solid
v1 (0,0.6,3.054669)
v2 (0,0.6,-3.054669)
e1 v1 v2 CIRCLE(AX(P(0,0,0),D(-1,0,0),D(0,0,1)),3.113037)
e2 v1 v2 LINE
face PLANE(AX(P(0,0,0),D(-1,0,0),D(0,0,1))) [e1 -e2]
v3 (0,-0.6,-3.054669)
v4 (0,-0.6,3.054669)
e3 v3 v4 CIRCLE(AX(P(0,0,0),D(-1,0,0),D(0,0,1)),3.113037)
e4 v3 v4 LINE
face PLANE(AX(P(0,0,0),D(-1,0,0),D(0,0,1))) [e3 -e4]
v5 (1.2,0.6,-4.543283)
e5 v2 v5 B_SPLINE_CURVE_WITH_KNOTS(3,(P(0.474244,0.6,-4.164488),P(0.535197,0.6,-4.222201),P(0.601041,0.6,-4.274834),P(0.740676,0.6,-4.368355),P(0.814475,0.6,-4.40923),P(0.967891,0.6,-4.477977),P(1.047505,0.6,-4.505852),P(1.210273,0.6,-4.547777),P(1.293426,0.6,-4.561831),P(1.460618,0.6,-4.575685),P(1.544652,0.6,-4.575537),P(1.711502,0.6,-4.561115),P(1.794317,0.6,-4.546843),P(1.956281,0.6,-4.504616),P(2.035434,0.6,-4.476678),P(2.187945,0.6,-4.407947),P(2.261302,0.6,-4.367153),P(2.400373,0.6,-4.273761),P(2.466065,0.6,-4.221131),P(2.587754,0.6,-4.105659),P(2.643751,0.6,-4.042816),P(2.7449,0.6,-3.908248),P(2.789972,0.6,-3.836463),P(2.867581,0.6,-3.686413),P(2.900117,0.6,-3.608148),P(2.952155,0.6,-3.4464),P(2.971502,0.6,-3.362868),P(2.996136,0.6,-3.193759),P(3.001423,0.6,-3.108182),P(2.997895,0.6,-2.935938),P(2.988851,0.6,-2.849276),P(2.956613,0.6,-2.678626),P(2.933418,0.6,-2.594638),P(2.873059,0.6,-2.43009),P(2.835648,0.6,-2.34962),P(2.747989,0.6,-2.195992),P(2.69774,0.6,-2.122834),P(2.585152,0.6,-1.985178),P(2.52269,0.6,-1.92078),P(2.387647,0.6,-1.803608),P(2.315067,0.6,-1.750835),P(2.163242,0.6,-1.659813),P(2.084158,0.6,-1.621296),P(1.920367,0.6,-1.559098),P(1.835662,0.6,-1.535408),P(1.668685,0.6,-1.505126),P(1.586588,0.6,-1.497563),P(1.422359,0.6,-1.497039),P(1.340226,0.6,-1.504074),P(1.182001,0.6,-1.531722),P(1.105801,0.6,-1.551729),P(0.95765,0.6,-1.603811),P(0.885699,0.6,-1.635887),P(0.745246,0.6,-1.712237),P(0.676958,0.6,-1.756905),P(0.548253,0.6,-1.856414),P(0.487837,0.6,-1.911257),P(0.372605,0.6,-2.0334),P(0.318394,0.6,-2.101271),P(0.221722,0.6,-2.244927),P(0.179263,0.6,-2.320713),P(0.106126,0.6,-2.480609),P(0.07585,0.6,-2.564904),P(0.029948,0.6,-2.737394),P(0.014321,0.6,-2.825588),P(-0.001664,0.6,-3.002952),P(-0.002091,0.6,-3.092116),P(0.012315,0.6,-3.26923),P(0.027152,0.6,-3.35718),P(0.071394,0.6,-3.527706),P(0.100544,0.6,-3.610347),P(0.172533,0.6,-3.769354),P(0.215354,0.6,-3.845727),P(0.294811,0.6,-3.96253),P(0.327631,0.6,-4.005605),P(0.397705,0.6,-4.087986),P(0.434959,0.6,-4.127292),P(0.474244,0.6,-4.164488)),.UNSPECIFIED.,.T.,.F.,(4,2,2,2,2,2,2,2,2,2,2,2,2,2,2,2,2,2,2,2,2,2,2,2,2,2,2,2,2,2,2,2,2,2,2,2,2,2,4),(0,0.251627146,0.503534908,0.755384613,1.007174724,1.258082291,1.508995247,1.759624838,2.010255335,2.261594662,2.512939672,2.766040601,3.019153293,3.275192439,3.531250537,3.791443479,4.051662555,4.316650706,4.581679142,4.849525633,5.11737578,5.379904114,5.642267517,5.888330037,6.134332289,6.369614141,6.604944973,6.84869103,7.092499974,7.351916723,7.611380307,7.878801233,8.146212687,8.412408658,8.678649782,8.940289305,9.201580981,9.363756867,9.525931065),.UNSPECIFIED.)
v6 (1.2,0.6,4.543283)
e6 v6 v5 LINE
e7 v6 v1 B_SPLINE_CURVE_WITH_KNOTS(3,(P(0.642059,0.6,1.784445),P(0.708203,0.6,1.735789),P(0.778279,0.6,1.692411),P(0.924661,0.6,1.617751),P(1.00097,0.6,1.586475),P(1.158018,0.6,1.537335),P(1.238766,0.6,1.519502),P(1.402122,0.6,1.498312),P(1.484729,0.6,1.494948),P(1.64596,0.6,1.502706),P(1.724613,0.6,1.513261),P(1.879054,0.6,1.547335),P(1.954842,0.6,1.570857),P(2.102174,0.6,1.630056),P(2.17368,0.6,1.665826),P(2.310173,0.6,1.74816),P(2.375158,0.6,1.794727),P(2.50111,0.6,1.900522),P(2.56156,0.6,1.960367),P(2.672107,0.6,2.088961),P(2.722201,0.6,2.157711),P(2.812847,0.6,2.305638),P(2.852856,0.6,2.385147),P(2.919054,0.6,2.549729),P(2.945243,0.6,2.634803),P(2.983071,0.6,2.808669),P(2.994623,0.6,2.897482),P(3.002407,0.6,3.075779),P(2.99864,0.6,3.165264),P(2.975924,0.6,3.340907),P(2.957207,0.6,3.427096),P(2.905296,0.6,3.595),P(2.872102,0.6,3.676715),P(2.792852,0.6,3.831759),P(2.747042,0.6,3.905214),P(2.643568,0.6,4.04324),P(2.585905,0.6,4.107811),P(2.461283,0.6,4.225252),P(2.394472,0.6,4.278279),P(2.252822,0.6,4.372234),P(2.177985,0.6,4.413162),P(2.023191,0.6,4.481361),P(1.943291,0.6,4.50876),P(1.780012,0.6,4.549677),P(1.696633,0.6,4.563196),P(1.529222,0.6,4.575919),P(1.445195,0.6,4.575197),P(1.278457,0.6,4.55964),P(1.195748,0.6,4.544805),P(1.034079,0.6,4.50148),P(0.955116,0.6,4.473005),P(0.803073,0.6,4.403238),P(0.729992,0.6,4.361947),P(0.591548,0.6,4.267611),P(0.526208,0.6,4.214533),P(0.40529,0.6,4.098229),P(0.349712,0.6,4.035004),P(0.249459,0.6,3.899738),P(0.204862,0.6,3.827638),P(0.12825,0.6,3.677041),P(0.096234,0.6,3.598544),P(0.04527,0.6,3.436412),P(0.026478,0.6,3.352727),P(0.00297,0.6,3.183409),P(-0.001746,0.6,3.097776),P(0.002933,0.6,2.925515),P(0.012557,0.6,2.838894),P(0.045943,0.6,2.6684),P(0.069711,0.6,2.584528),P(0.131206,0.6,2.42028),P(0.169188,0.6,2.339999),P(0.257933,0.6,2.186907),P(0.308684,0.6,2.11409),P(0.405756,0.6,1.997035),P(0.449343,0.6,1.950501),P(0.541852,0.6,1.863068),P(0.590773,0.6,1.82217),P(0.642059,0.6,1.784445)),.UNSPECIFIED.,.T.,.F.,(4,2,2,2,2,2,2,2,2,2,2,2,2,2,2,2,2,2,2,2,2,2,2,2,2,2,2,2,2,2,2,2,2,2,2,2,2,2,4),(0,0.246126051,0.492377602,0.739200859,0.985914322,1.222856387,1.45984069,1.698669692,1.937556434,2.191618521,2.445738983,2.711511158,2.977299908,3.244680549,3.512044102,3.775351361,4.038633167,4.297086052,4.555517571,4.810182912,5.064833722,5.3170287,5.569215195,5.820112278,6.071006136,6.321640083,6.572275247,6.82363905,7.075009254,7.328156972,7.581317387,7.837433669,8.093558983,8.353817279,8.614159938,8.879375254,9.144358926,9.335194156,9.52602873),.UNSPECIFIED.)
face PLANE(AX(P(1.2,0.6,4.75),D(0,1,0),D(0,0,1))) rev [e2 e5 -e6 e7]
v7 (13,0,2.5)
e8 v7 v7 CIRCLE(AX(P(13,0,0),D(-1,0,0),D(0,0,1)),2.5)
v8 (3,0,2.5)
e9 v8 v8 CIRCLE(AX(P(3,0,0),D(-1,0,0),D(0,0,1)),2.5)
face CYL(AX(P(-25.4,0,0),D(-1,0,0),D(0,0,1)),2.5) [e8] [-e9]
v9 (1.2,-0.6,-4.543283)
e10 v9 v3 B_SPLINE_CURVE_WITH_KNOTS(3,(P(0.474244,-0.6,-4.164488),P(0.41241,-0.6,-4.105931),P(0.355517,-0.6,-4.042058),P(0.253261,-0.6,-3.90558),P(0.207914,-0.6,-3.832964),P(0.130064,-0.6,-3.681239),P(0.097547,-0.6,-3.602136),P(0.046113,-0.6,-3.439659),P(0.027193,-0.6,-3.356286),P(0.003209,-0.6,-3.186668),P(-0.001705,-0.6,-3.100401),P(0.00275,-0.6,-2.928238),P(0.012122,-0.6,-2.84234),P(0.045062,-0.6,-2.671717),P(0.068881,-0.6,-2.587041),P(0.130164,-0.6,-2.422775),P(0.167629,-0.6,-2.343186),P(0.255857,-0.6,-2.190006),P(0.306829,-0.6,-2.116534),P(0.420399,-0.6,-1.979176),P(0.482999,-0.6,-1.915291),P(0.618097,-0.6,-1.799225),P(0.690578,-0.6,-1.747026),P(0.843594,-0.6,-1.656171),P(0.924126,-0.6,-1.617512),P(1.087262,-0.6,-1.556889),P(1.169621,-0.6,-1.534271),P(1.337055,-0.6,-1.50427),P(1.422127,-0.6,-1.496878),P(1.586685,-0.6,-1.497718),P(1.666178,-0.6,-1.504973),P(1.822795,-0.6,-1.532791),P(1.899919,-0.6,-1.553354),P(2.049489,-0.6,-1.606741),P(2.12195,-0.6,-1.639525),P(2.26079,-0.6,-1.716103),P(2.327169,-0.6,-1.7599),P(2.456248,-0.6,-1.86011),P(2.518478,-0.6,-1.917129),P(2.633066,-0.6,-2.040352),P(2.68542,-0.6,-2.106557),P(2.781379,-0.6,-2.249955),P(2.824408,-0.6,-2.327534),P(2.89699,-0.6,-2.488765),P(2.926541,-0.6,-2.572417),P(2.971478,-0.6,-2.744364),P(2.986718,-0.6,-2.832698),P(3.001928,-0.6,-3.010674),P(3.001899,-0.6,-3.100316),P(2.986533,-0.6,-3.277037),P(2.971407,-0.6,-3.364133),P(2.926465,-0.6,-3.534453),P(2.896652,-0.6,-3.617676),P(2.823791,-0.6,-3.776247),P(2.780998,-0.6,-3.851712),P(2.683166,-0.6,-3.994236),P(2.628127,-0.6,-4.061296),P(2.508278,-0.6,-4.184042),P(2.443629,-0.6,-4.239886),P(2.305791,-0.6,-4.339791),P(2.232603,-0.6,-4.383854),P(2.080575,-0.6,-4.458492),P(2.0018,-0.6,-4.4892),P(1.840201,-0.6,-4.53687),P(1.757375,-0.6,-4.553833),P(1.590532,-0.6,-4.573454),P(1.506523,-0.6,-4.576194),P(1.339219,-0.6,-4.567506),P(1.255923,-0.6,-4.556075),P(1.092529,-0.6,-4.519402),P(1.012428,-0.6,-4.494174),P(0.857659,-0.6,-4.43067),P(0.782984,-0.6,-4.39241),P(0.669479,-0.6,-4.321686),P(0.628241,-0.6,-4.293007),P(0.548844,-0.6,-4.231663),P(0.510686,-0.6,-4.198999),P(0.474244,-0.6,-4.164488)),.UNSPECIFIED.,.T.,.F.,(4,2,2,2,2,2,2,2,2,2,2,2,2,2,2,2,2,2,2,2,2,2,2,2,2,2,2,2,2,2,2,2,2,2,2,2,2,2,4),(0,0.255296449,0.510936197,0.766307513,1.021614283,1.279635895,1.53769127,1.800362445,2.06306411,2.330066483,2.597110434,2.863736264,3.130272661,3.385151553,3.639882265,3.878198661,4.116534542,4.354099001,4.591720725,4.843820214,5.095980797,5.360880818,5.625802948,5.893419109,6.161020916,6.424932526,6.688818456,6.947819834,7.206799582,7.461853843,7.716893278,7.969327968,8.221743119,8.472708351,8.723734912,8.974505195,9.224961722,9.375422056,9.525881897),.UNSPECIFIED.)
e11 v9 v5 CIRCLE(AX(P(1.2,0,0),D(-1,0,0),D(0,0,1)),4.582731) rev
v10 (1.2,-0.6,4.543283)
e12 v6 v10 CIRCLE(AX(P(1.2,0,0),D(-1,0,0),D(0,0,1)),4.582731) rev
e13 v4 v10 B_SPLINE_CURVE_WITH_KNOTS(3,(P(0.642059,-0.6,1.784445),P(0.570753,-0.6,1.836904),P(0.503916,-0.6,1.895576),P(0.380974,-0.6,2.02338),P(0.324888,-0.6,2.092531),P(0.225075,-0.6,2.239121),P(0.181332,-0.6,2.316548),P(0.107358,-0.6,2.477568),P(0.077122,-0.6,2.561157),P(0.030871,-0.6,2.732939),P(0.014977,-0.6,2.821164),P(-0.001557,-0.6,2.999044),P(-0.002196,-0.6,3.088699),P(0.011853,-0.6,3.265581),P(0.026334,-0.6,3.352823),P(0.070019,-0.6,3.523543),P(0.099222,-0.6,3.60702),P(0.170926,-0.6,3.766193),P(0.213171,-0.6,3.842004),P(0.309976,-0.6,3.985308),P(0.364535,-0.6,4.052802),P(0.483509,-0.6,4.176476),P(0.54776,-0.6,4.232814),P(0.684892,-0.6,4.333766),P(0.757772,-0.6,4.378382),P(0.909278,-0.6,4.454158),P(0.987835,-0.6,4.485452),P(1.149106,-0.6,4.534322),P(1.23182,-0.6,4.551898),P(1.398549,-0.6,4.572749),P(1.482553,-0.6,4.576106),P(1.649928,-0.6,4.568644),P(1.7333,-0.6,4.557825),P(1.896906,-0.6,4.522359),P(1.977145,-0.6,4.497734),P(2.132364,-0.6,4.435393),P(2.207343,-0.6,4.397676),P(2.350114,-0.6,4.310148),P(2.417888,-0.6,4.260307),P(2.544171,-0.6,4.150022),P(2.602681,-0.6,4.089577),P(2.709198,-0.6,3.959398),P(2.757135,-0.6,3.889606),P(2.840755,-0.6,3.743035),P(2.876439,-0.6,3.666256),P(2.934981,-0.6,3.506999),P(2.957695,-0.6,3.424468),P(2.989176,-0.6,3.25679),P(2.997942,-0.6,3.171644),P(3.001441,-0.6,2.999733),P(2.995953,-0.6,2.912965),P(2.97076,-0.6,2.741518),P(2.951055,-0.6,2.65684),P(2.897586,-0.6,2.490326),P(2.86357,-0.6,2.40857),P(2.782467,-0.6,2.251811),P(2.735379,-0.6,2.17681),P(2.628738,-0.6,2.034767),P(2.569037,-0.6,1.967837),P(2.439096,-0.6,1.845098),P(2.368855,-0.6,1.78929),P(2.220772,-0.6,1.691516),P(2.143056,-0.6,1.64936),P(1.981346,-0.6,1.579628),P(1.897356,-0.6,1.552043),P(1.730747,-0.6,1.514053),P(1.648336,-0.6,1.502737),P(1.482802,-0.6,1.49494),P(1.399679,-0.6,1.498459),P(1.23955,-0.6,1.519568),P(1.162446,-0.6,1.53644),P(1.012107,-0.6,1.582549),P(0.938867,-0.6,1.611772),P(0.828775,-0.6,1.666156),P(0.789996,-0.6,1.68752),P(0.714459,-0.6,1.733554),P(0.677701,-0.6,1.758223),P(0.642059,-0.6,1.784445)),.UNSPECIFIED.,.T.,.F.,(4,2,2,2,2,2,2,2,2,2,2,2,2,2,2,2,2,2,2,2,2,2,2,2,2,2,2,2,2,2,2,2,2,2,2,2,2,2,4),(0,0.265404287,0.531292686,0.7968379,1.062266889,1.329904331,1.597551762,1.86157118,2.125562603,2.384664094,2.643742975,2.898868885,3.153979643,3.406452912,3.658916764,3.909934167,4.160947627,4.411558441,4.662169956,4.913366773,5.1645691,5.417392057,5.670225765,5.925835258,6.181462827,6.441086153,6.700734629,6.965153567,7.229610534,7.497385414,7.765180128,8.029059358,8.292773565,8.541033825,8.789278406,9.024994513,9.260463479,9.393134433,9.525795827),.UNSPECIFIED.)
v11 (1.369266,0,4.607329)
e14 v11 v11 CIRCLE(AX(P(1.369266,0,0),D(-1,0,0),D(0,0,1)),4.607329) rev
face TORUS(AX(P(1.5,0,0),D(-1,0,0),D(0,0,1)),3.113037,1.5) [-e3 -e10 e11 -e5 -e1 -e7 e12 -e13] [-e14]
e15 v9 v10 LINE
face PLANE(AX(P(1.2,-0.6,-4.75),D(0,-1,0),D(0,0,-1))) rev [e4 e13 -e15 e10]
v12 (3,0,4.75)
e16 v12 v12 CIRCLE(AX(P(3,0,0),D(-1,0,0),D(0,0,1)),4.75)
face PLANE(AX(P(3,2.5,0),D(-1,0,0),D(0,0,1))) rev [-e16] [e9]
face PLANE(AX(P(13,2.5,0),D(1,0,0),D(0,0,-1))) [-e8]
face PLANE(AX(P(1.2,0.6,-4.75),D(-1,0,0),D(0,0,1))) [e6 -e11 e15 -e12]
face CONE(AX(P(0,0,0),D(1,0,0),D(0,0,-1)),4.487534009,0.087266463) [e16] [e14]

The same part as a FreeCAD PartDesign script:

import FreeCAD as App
import Part
import Sketcher
Q = App.Units.Quantity


def edges_at(feature, points):
    """Names of the edges that pass closest to the given points."""
    edges = feature.Shape.Edges
    near = lambda p: min(range(len(edges)), key=lambda i: edges[i].distToShape(Part.Vertex(*p))[0])
    return sorted({f"Edge{near(p) + 1}" for p in points})


def add_polygon(sketch, points):
    """Adds a closed chain of lines whose ends are joined by coincident constraints."""
    first, n = sketch.GeometryCount, len(points)
    for a, b in zip(points, points[1:] + points[:1]):
        sketch.addGeometry(Part.LineSegment(App.Vector(*a, 0), App.Vector(*b, 0)), False)
    for i in range(n):
        sketch.addConstraint(Sketcher.Constraint("Coincident", first + i, 2, first + (i + 1) % n, 1))

doc = App.newDocument("Part")
params = doc.addObject("Spreadsheet::Sheet", "Params")
for row, (alias, value) in enumerate([
    ("sketch1_width", "13 mm"),
    ("sketch1_width2", "10 mm"),
    ("sketch1_height", "2.5 mm"),
    ("sketch1_height2", "2.25 mm"),
    ("revolution_angle", "360 deg"),
    ("fillet_radius", "1.5 mm"),
    ("sketch2_width", "1.2 mm"),
    ("sketch2_height", "9.5 mm"),
    ("pocket1_length", "1.2 mm"),
], start=1):
    params.set(f"A{row}", alias)
    params.set(f"B{row}", "=" + value)
    params.setAlias(f"B{row}", alias)

body = doc.addObject("PartDesign::Body", "Body")

# Sketch on XY plane
sketch1 = body.newObject("Sketcher::SketchObject", "Sketch")
sketch1.AttachmentSupport = (doc.getObject("XY_Plane"), [""])
sketch1.MapMode = "FlatFace"
add_polygon(sketch1, [(3, 2.5), (3, 4.8), (0, 4.5), (0, 0), (13, 0), (13, 2.5)])  # lines 0-5
sketch1.addConstraint([
    Sketcher.Constraint("Vertical", 0),
    Sketcher.Constraint("Vertical", 2),
    Sketcher.Constraint("Horizontal", 3),
    Sketcher.Constraint("Vertical", 4),
    Sketcher.Constraint("Horizontal", 5),
    Sketcher.Constraint("Coincident", 2, 2, -1, 1),
    Sketcher.Constraint("DistanceX", 3, 1, 3, 2, Q("13 mm")),
    Sketcher.Constraint("DistanceX", 5, 2, 5, 1, Q("10 mm")),
    Sketcher.Constraint("Angle", 1, Q("-175 deg")),
    Sketcher.Constraint("DistanceY", 4, 1, 4, 2, Q("2.5 mm")),
    Sketcher.Constraint("DistanceY", 0, 1, 0, 2, Q("2.25 mm")),
])
sketch1.setExpression("Constraints[12]", "Params.sketch1_width")
sketch1.setExpression("Constraints[13]", "Params.sketch1_width2")
sketch1.setExpression("Constraints[15]", "Params.sketch1_height")
sketch1.setExpression("Constraints[16]", "Params.sketch1_height2")
revolution = body.newObject("PartDesign::Revolution", "Revolution")
revolution.Profile = sketch1
revolution.ReferenceAxis = (sketch1, ["H_Axis"])
revolution.setExpression("Angle", "Params.revolution_angle")
doc.recompute()

fillet = body.newObject("PartDesign::Fillet", "Fillet")
fillet.Base = (revolution, edges_at(revolution, [(0, 0, -4.488)]))
fillet.setExpression("Radius", "Params.fillet_radius")

# Sketch on YZ plane
sketch2 = body.newObject("Sketcher::SketchObject", "Sketch001")
sketch2.AttachmentSupport = (doc.getObject("YZ_Plane"), [""])
sketch2.MapMode = "FlatFace"
add_polygon(sketch2, [(0.6, 4.8), (-0.6, 4.8), (-0.6, -4.8), (0.6, -4.8)])  # lines 0-3
sketch2.addConstraint([
    Sketcher.Constraint("Horizontal", 0),
    Sketcher.Constraint("Vertical", 1),
    Sketcher.Constraint("Horizontal", 2),
    Sketcher.Constraint("Vertical", 3),
    Sketcher.Constraint("Symmetric", 0, 2, 2, 2, -1, 1),
    Sketcher.Constraint("DistanceX", 0, 2, 0, 1, Q("1.2 mm")),
    Sketcher.Constraint("DistanceY", 1, 2, 1, 1, Q("9.5 mm")),
])
sketch2.setExpression("Constraints[9]", "Params.sketch2_width")
sketch2.setExpression("Constraints[10]", "Params.sketch2_height")
pocket1 = body.newObject("PartDesign::Pocket", "Pocket")
pocket1.Profile = sketch2
pocket1.setExpression("Length", "Params.pocket1_length")
pocket1.Reversed = True

doc.recompute()
